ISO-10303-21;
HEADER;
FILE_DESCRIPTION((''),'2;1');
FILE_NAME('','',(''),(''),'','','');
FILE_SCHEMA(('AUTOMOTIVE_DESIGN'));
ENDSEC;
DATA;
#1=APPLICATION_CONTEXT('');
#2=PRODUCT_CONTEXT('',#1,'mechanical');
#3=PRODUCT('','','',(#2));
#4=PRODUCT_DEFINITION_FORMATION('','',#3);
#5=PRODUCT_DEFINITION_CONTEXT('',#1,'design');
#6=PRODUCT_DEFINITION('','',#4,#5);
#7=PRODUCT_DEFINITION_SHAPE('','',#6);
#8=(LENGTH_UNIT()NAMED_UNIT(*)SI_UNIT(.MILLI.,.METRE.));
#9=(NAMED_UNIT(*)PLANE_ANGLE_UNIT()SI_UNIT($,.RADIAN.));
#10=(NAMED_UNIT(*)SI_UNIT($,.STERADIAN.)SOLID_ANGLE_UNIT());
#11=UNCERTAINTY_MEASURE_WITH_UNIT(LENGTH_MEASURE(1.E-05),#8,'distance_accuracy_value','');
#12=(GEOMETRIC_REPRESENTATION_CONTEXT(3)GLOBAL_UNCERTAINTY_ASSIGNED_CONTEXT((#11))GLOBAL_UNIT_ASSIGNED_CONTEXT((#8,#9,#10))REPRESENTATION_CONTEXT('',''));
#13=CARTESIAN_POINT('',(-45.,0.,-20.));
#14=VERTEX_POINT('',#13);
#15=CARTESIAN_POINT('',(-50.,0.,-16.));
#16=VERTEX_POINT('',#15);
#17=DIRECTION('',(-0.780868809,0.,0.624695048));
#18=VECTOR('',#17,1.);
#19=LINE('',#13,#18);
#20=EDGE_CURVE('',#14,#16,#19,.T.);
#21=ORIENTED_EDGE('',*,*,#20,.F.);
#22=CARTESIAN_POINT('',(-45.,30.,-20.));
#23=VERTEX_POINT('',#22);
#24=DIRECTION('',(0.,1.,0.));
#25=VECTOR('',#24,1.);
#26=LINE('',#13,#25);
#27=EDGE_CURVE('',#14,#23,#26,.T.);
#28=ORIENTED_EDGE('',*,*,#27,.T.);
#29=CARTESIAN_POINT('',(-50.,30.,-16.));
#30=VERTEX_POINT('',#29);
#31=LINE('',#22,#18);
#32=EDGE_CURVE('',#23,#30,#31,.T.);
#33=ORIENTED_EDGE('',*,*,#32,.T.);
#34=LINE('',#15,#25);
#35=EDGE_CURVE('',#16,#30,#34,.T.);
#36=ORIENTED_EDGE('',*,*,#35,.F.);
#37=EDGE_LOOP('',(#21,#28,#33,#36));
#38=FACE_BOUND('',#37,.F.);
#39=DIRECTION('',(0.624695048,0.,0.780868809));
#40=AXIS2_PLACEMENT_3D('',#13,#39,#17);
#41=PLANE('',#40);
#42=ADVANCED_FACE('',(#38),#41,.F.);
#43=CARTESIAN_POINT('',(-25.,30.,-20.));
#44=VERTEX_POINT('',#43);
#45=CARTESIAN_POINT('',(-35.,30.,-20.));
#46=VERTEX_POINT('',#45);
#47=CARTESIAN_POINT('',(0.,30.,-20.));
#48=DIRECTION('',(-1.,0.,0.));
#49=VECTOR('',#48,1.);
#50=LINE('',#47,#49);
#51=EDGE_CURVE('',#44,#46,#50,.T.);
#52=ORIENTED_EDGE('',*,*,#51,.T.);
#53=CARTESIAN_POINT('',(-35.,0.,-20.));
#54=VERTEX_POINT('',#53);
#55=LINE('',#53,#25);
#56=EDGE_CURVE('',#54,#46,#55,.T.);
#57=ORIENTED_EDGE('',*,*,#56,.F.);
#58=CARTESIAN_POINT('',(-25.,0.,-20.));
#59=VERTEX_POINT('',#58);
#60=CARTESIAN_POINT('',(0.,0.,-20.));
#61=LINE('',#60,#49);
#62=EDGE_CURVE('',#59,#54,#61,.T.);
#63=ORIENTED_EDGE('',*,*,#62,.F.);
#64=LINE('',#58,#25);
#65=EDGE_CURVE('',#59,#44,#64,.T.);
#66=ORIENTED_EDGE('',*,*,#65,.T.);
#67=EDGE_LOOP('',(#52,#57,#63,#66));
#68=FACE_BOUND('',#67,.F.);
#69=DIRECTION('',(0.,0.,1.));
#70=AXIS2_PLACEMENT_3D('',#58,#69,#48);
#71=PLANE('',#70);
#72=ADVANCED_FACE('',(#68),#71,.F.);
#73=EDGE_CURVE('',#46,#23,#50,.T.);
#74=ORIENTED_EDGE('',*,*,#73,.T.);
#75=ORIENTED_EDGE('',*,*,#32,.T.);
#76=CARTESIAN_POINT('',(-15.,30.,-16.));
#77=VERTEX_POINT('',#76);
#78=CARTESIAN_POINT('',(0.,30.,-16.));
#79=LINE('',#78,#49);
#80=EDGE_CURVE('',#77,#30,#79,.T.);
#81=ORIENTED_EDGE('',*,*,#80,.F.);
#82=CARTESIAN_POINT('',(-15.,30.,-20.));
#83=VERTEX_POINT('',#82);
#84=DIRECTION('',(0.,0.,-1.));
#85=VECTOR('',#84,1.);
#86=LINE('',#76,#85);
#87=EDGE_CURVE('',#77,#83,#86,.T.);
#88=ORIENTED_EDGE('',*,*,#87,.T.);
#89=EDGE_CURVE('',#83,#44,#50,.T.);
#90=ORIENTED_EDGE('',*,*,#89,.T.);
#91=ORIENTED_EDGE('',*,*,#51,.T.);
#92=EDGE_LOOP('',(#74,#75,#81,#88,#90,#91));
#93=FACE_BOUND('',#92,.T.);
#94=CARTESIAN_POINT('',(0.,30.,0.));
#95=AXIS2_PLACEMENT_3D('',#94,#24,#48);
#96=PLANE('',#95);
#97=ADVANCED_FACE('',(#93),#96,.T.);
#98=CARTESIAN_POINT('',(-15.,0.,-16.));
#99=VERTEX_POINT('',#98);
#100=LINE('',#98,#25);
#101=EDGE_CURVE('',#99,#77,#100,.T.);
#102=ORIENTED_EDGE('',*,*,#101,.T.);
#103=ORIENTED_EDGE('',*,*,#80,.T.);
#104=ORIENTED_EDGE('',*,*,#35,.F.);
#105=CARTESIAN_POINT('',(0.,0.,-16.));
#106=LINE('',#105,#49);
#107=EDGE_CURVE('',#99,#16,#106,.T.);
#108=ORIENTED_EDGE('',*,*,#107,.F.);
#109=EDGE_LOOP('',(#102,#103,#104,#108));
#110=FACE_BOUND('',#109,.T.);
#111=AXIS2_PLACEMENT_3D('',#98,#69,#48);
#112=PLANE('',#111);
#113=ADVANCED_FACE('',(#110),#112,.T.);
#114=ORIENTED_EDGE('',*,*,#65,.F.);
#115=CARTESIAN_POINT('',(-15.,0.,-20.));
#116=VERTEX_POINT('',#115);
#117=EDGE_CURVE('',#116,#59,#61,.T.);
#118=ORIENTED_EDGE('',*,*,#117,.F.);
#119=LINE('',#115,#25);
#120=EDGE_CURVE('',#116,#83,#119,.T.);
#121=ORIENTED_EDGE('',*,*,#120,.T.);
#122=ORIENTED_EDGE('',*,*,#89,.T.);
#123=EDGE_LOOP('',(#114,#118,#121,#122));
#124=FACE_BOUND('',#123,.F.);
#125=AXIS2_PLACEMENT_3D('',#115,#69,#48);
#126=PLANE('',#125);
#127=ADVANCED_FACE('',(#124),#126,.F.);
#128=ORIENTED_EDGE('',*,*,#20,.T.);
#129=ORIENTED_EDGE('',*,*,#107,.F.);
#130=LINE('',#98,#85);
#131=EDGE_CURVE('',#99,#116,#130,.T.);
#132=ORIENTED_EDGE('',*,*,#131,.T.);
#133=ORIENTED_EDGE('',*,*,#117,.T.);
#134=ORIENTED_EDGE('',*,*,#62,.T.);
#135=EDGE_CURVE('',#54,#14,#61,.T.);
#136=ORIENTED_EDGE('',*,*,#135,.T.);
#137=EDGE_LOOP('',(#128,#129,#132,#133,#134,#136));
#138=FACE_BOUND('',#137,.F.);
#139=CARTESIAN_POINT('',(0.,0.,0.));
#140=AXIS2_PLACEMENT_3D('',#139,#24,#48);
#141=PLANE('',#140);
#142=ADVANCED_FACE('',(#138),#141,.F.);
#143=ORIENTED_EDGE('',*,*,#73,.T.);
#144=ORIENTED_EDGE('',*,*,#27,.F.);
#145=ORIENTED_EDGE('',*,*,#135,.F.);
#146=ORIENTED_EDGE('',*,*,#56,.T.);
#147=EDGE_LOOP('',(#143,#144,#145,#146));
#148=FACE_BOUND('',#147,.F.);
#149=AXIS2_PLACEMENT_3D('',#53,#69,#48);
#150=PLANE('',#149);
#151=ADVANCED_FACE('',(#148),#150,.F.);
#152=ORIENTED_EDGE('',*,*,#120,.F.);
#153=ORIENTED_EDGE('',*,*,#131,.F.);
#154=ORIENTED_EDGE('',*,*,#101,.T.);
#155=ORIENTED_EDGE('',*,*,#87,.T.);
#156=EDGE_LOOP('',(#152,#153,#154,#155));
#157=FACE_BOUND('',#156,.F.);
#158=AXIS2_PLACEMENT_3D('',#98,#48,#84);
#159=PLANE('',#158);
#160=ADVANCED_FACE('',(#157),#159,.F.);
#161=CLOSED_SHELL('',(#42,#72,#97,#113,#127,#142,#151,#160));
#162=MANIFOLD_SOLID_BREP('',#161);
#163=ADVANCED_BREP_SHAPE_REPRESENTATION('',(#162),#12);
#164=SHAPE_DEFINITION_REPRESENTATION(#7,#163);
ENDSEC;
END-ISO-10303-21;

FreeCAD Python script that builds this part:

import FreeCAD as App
import Part
import Sketcher

V = App.Vector


def add_polygon(sketch, points):
    """Adds a closed chain of lines whose ends are joined by coincident constraints."""
    first, n = sketch.GeometryCount, len(points)
    for a, b in zip(points, points[1:] + points[:1]):
        sketch.addGeometry(Part.LineSegment(App.Vector(*a, 0), App.Vector(*b, 0)), False)
    for i in range(n):
        sketch.addConstraint(Sketcher.Constraint("Coincident", first + i, 2, first + (i + 1) % n, 1))

doc = App.newDocument("Part")
body = doc.addObject("PartDesign::Body", "Body")

sketch1 = doc.addObject("Sketcher::SketchObject", "Sketch")
body.addObject(sketch1)
sketch1.AttachmentSupport = (doc.XZ_Plane, [""])
sketch1.MapMode = "FlatFace"
add_polygon(sketch1, [(-50, -16), (-15, -16), (-15, -20), (-45, -20)])
sketch1.addConstraint(Sketcher.Constraint("Horizontal", 0))
sketch1.addConstraint(Sketcher.Constraint("Vertical", 1))
sketch1.addConstraint(Sketcher.Constraint("Horizontal", 2))
sketch1.addConstraint(Sketcher.Constraint("DistanceX", 2, 2, 2, 1, 30.0))
sketch1.addConstraint(Sketcher.Constraint("DistanceY", 1, 2, 1, 1, 4.0))
sketch1.addConstraint(Sketcher.Constraint("DistanceX", 0, 2, -1, 1, 15.0))
sketch1.addConstraint(Sketcher.Constraint("DistanceY", 0, 2, -1, 1, 16.0))
sketch1.addConstraint(Sketcher.Constraint("DistanceX", 3, 2, -1, 1, 50.0))
pad1 = doc.addObject("PartDesign::Pad", "Pad")
body.addObject(pad1)
pad1.Profile = sketch1
pad1.Length = 30
pad1.Reversed = True

doc.recompute()
